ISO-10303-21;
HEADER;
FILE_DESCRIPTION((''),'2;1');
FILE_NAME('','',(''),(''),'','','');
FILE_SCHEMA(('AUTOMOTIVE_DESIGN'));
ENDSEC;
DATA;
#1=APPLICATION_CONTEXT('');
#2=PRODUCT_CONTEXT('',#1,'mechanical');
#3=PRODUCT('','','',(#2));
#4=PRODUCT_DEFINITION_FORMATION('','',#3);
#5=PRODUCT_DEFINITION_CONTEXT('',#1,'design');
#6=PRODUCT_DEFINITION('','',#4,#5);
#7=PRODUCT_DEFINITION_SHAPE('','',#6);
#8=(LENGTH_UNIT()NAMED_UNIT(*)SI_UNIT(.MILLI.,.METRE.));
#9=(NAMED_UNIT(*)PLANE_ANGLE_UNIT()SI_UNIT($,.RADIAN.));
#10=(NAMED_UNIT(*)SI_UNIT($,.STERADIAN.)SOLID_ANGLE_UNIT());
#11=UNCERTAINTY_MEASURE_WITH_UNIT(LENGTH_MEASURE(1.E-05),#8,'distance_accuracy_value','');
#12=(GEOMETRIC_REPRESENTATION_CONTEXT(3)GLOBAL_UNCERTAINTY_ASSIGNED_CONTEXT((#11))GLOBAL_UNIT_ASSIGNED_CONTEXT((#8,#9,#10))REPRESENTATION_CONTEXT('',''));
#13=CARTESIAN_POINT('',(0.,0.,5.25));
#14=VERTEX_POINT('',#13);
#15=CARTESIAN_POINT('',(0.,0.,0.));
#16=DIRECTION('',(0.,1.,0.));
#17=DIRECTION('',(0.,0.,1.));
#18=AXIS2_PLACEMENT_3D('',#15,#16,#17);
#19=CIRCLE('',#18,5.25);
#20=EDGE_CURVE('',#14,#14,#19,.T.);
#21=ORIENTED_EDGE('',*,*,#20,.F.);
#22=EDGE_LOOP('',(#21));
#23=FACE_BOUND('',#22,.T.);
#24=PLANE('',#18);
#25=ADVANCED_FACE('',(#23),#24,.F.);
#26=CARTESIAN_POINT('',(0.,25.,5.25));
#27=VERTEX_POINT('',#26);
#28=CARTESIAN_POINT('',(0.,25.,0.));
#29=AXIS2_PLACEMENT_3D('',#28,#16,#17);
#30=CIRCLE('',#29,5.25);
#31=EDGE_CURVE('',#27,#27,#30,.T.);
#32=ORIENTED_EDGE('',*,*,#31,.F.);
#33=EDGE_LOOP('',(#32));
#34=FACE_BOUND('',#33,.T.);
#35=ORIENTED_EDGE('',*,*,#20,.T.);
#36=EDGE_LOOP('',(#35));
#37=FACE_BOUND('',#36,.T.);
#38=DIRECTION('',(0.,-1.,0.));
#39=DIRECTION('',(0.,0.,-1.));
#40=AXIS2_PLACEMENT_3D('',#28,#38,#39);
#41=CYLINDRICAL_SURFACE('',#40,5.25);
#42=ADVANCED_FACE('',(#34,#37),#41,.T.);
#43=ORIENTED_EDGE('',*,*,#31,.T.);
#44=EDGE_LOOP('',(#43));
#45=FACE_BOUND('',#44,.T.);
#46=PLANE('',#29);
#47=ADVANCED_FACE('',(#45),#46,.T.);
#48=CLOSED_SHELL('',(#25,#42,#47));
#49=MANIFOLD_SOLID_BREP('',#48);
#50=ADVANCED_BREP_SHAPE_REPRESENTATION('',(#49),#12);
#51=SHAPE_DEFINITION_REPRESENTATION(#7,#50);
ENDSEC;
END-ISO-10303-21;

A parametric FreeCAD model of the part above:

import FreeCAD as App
import Part
import Sketcher
Q = App.Units.Quantity

doc = App.newDocument("Part")
params = doc.addObject("Spreadsheet::Sheet", "Params")
for row, (alias, value) in enumerate([
    ("sketch1_diameter", "10.5 mm"),
    ("pad1_length", "25 mm"),
], start=1):
    params.set(f"A{row}", alias)
    params.set(f"B{row}", "=" + value)
    params.setAlias(f"B{row}", alias)

body = doc.addObject("PartDesign::Body", "Body")

# Sketch on XZ plane
sketch1 = body.newObject("Sketcher::SketchObject", "Sketch")
sketch1.AttachmentSupport = (doc.getObject("XZ_Plane"), [""])
sketch1.MapMode = "FlatFace"
sketch1.addGeometry(Part.Circle(App.Vector(0, 0, 0), App.Vector(0, 0, 1), 5.25), False)
sketch1.addConstraint(Sketcher.Constraint("Coincident", 0, 3, -1, 1))
sketch1.addConstraint(Sketcher.Constraint("Diameter", 0, Q("10.5 mm")))
sketch1.setExpression("Constraints[1]", "Params.sketch1_diameter")
pad1 = body.newObject("PartDesign::Pad", "Pad")
pad1.Profile = sketch1
pad1.setExpression("Length", "Params.pad1_length")
pad1.Reversed = True

doc.recompute()
